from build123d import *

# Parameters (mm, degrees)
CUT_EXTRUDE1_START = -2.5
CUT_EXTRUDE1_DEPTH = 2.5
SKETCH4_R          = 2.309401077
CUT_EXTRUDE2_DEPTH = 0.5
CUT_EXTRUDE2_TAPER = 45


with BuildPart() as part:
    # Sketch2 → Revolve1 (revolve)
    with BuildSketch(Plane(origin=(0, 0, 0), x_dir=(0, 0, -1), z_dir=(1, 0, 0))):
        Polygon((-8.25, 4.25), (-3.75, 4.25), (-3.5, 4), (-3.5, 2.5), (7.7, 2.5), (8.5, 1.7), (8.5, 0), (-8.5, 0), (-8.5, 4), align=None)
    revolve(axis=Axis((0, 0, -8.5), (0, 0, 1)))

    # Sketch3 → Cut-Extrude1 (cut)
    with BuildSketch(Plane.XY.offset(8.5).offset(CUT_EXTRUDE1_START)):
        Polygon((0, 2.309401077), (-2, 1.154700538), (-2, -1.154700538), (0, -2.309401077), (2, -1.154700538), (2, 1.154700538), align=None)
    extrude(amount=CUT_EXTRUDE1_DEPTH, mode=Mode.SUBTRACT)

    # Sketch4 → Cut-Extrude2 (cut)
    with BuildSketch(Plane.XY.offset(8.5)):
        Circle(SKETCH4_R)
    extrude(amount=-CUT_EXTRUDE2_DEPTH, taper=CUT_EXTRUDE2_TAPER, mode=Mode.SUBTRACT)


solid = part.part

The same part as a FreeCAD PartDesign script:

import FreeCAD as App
import Part
import Sketcher
from FreeCAD import Vector
Q = App.Units.Quantity

doc = App.newDocument("Part")
body = doc.addObject("PartDesign::Body", "Body")

# Sketch on YZ plane
sketch1 = body.newObject("Sketcher::SketchObject", "Sketch")
sketch1.AttachmentSupport = (doc.getObject("YZ_Plane"), [""])
sketch1.MapMode = "FlatFace"
sketch1.addGeometry([
    Part.LineSegment(Vector(4.25, 3.75, 0), Vector(4.25, 8.25, 0)),  # 0
    Part.LineSegment(Vector(4.25, 8.25, 0), Vector(4, 8.5, 0)),  # 1
    Part.LineSegment(Vector(4, 8.5, 0), Vector(0, 8.5, 0)),  # 2
    Part.LineSegment(Vector(0, 8.5, 0), Vector(0, -8.5, 0)),  # 3
    Part.LineSegment(Vector(0, -8.5, 0), Vector(1.7, -8.5, 0)),  # 4
    Part.LineSegment(Vector(1.7, -8.5, 0), Vector(2.5, -7.7, 0)),  # 5
    Part.LineSegment(Vector(2.5, -7.7, 0), Vector(2.5, 3.5, 0)),  # 6
    Part.LineSegment(Vector(2.5, 3.5, 0), Vector(4, 3.5, 0)),  # 7
    Part.LineSegment(Vector(4, 3.5, 0), Vector(4.25, 3.75, 0)),  # 8
], False)
sketch1.addConstraint([
    Sketcher.Constraint("Coincident", 0, 2, 1, 1),
    Sketcher.Constraint("Coincident", 1, 2, 2, 1),
    Sketcher.Constraint("Coincident", 2, 2, 3, 1),
    Sketcher.Constraint("Coincident", 3, 2, 4, 1),
    Sketcher.Constraint("Coincident", 4, 2, 5, 1),
    Sketcher.Constraint("Coincident", 5, 2, 6, 1),
    Sketcher.Constraint("Coincident", 6, 2, 7, 1),
    Sketcher.Constraint("Coincident", 7, 2, 8, 1),
    Sketcher.Constraint("Coincident", 8, 2, 0, 1),
    Sketcher.Constraint("Vertical", 0),
    Sketcher.Constraint("Horizontal", 2),
    Sketcher.Constraint("Vertical", 3),
    Sketcher.Constraint("Horizontal", 4),
    Sketcher.Constraint("Vertical", 6),
    Sketcher.Constraint("Horizontal", 7),
    Sketcher.Constraint("Symmetric", 2, 2, 3, 2, -1, 1),
    Sketcher.Constraint("Perpendicular", 1, 5),
    Sketcher.Constraint("Parallel", 5, 8),
    Sketcher.Constraint("Vertical", 1, 2, 7, 2),
    Sketcher.Constraint("Equal", 1, 8),
    Sketcher.Constraint("DistanceX", 2, 2, 2, 1, 4.0),
    Sketcher.Constraint("DistanceY", 3, 2, 3, 1, 17.0),
    Sketcher.Constraint("DistanceX", 4, 1, 4, 2, 1.7),
    Sketcher.Constraint("DistanceX", 7, 1, 7, 2, 1.5),
    Sketcher.Constraint("DistanceY", 0, 1, 0, 2, 4.5),
    Sketcher.Constraint("DistanceY", 6, 1, 6, 2, 11.2),
])
revolution = body.newObject("PartDesign::Revolution", "Revolution")
revolution.Profile = sketch1
revolution.ReferenceAxis = (sketch1, ["V_Axis"])
revolution.Angle = 360

# Sketch on XY plane
sketch2 = body.newObject("Sketcher::SketchObject", "Sketch001")
sketch2.AttachmentSupport = (doc.getObject("XY_Plane"), [""])
sketch2.MapMode = "FlatFace"
sketch2.AttachmentOffset = App.Placement(Vector(0, 0, 6), App.Rotation())
sketch2.addGeometry([
    Part.LineSegment(Vector(0, 2.309401, 0), Vector(-2, 1.154701, 0)),  # 0
    Part.LineSegment(Vector(-2, 1.154701, 0), Vector(-2, -1.154701, 0)),  # 1
    Part.LineSegment(Vector(-2, -1.154701, 0), Vector(0, -2.309401, 0)),  # 2
    Part.LineSegment(Vector(0, -2.309401, 0), Vector(2, -1.154701, 0)),  # 3
    Part.LineSegment(Vector(2, -1.154701, 0), Vector(2, 1.154701, 0)),  # 4
    Part.LineSegment(Vector(2, 1.154701, 0), Vector(0, 2.309401, 0)),  # 5
], False)
sketch2.addConstraint([
    Sketcher.Constraint("Coincident", 0, 2, 1, 1),
    Sketcher.Constraint("Coincident", 1, 2, 2, 1),
    Sketcher.Constraint("Coincident", 2, 2, 3, 1),
    Sketcher.Constraint("Coincident", 3, 2, 4, 1),
    Sketcher.Constraint("Coincident", 4, 2, 5, 1),
    Sketcher.Constraint("Coincident", 5, 2, 0, 1),
    Sketcher.Constraint("Vertical", 1),
    Sketcher.Constraint("Vertical", 4),
    Sketcher.Constraint("Symmetric", 0, 2, 3, 2, -1, 1),
    Sketcher.Constraint("Symmetric", 2, 2, 5, 2, -1, 1),
    Sketcher.Constraint("PointOnObject", 2, 2, -2),
    Sketcher.Constraint("Parallel", 2, 5),
    Sketcher.Constraint("Horizontal", 1, 2, 3, 2),
    Sketcher.Constraint("Angle", 0, Q("-150 deg")),
    Sketcher.Constraint("DistanceX", 0, 2, -1, 1, 2.0),
    Sketcher.Constraint("DistanceY", 1, 2, 1, 1, 2.309401),
])
pocket1 = body.newObject("PartDesign::Pocket", "Pocket")
pocket1.Profile = sketch2
pocket1.Length = 2.5
pocket1.Reversed = True

# Sketch on XY plane
sketch3 = body.newObject("Sketcher::SketchObject", "Sketch002")
sketch3.AttachmentSupport = (doc.getObject("XY_Plane"), [""])
sketch3.MapMode = "FlatFace"
sketch3.AttachmentOffset = App.Placement(Vector(0, 0, 8.5), App.Rotation())
sketch3.addGeometry(Part.Circle(Vector(0, 0, 0), Vector(0, 0, 1), 2.309401), False)
sketch3.addConstraint([
    Sketcher.Constraint("Coincident", 0, 3, -1, 1),
    Sketcher.Constraint("Diameter", 0, 4.618802),
])
pocket2 = body.newObject("PartDesign::Pocket", "Pocket001")
pocket2.Profile = sketch3
pocket2.Length = 0.5
pocket2.TaperAngle = -45

doc.recompute()
